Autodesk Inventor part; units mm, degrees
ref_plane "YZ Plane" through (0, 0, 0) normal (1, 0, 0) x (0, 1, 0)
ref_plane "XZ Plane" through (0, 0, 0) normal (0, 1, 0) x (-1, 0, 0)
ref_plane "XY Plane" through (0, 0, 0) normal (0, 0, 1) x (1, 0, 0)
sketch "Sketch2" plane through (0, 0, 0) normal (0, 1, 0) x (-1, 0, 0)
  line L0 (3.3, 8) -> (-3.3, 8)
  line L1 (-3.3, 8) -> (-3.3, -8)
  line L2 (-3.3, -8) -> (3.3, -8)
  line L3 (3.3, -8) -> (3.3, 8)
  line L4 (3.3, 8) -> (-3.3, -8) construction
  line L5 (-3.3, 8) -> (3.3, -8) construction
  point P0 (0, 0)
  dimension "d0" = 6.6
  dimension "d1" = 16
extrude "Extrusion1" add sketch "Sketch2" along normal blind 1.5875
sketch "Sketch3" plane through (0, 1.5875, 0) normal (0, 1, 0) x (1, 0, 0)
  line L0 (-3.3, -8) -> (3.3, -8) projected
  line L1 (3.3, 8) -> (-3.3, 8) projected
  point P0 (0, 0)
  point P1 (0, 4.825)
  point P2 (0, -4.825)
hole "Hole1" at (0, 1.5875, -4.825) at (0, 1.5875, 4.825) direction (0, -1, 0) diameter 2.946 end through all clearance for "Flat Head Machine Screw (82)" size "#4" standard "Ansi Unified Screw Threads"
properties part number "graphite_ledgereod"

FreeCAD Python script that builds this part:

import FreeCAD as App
import Part
import Sketcher
from FreeCAD import Vector


def add_polygon(sketch, points):
    """Adds a closed chain of lines whose ends are joined by coincident constraints."""
    first, n = sketch.GeometryCount, len(points)
    for a, b in zip(points, points[1:] + points[:1]):
        sketch.addGeometry(Part.LineSegment(App.Vector(*a, 0), App.Vector(*b, 0)), False)
    for i in range(n):
        sketch.addConstraint(Sketcher.Constraint("Coincident", first + i, 2, first + (i + 1) % n, 1))

doc = App.newDocument("Part")
body = doc.addObject("PartDesign::Body", "Body")

# Sketch on XZ plane
sketch1 = body.newObject("Sketcher::SketchObject", "Sketch")
sketch1.AttachmentSupport = (doc.getObject("XZ_Plane"), [""])
sketch1.MapMode = "FlatFace"
add_polygon(sketch1, [(-3, -8), (-3, 8), (3, 8), (3, -8)])  # lines 0-3
sketch1.addConstraint(Sketcher.Constraint("Vertical", 0))
sketch1.addConstraint(Sketcher.Constraint("Horizontal", 1))
sketch1.addConstraint(Sketcher.Constraint("Vertical", 2))
sketch1.addConstraint(Sketcher.Constraint("Horizontal", 3))
sketch1.addConstraint(Sketcher.Constraint("Symmetric", 0, 2, 2, 2, -1, 1))
sketch1.addConstraint(Sketcher.Constraint("DistanceY", 0, 1, 0, 2, 16.0))
sketch1.addConstraint(Sketcher.Constraint("DistanceX", 1, 1, 1, 2, 6.6))
pad1 = body.newObject("PartDesign::Pad", "Pad")
pad1.Profile = sketch1
pad1.Length = 1.5875
pad1.Reversed = True

# Sketch on XZ plane
sketch2 = body.newObject("Sketcher::SketchObject", "Sketch001")
sketch2.AttachmentSupport = (doc.getObject("XZ_Plane"), [""])
sketch2.MapMode = "FlatFace"
sketch2.AttachmentOffset = App.Placement(Vector(0, 0, -1.5875), App.Rotation())
sketch2.addGeometry(Part.Circle(Vector(0, -4.8, 0), Vector(0, 0, 1), 1.5), False)
sketch2.addGeometry(Part.Circle(Vector(0, 4.8, 0), Vector(0, 0, 1), 1.5), False)
sketch2.addConstraint(Sketcher.Constraint("Equal", 0, 1))
sketch2.addConstraint(Sketcher.Constraint("Symmetric", 0, 3, 1, 3, -1, 1))
sketch2.addConstraint(Sketcher.Constraint("PointOnObject", 0, 3, -2))
sketch2.addConstraint(Sketcher.Constraint("Diameter", 0, 2.946))
sketch2.addConstraint(Sketcher.Constraint("DistanceY", 0, 3, 1, 3, 9.65))
doc.recompute()
hole = body.newObject("PartDesign::Hole", "Hole")
hole.Profile = sketch2
hole.ThreadType = "None"
hole.Diameter = 2.946
hole.DepthType = "ThroughAll"
hole.Reversed = True

doc.recompute()
